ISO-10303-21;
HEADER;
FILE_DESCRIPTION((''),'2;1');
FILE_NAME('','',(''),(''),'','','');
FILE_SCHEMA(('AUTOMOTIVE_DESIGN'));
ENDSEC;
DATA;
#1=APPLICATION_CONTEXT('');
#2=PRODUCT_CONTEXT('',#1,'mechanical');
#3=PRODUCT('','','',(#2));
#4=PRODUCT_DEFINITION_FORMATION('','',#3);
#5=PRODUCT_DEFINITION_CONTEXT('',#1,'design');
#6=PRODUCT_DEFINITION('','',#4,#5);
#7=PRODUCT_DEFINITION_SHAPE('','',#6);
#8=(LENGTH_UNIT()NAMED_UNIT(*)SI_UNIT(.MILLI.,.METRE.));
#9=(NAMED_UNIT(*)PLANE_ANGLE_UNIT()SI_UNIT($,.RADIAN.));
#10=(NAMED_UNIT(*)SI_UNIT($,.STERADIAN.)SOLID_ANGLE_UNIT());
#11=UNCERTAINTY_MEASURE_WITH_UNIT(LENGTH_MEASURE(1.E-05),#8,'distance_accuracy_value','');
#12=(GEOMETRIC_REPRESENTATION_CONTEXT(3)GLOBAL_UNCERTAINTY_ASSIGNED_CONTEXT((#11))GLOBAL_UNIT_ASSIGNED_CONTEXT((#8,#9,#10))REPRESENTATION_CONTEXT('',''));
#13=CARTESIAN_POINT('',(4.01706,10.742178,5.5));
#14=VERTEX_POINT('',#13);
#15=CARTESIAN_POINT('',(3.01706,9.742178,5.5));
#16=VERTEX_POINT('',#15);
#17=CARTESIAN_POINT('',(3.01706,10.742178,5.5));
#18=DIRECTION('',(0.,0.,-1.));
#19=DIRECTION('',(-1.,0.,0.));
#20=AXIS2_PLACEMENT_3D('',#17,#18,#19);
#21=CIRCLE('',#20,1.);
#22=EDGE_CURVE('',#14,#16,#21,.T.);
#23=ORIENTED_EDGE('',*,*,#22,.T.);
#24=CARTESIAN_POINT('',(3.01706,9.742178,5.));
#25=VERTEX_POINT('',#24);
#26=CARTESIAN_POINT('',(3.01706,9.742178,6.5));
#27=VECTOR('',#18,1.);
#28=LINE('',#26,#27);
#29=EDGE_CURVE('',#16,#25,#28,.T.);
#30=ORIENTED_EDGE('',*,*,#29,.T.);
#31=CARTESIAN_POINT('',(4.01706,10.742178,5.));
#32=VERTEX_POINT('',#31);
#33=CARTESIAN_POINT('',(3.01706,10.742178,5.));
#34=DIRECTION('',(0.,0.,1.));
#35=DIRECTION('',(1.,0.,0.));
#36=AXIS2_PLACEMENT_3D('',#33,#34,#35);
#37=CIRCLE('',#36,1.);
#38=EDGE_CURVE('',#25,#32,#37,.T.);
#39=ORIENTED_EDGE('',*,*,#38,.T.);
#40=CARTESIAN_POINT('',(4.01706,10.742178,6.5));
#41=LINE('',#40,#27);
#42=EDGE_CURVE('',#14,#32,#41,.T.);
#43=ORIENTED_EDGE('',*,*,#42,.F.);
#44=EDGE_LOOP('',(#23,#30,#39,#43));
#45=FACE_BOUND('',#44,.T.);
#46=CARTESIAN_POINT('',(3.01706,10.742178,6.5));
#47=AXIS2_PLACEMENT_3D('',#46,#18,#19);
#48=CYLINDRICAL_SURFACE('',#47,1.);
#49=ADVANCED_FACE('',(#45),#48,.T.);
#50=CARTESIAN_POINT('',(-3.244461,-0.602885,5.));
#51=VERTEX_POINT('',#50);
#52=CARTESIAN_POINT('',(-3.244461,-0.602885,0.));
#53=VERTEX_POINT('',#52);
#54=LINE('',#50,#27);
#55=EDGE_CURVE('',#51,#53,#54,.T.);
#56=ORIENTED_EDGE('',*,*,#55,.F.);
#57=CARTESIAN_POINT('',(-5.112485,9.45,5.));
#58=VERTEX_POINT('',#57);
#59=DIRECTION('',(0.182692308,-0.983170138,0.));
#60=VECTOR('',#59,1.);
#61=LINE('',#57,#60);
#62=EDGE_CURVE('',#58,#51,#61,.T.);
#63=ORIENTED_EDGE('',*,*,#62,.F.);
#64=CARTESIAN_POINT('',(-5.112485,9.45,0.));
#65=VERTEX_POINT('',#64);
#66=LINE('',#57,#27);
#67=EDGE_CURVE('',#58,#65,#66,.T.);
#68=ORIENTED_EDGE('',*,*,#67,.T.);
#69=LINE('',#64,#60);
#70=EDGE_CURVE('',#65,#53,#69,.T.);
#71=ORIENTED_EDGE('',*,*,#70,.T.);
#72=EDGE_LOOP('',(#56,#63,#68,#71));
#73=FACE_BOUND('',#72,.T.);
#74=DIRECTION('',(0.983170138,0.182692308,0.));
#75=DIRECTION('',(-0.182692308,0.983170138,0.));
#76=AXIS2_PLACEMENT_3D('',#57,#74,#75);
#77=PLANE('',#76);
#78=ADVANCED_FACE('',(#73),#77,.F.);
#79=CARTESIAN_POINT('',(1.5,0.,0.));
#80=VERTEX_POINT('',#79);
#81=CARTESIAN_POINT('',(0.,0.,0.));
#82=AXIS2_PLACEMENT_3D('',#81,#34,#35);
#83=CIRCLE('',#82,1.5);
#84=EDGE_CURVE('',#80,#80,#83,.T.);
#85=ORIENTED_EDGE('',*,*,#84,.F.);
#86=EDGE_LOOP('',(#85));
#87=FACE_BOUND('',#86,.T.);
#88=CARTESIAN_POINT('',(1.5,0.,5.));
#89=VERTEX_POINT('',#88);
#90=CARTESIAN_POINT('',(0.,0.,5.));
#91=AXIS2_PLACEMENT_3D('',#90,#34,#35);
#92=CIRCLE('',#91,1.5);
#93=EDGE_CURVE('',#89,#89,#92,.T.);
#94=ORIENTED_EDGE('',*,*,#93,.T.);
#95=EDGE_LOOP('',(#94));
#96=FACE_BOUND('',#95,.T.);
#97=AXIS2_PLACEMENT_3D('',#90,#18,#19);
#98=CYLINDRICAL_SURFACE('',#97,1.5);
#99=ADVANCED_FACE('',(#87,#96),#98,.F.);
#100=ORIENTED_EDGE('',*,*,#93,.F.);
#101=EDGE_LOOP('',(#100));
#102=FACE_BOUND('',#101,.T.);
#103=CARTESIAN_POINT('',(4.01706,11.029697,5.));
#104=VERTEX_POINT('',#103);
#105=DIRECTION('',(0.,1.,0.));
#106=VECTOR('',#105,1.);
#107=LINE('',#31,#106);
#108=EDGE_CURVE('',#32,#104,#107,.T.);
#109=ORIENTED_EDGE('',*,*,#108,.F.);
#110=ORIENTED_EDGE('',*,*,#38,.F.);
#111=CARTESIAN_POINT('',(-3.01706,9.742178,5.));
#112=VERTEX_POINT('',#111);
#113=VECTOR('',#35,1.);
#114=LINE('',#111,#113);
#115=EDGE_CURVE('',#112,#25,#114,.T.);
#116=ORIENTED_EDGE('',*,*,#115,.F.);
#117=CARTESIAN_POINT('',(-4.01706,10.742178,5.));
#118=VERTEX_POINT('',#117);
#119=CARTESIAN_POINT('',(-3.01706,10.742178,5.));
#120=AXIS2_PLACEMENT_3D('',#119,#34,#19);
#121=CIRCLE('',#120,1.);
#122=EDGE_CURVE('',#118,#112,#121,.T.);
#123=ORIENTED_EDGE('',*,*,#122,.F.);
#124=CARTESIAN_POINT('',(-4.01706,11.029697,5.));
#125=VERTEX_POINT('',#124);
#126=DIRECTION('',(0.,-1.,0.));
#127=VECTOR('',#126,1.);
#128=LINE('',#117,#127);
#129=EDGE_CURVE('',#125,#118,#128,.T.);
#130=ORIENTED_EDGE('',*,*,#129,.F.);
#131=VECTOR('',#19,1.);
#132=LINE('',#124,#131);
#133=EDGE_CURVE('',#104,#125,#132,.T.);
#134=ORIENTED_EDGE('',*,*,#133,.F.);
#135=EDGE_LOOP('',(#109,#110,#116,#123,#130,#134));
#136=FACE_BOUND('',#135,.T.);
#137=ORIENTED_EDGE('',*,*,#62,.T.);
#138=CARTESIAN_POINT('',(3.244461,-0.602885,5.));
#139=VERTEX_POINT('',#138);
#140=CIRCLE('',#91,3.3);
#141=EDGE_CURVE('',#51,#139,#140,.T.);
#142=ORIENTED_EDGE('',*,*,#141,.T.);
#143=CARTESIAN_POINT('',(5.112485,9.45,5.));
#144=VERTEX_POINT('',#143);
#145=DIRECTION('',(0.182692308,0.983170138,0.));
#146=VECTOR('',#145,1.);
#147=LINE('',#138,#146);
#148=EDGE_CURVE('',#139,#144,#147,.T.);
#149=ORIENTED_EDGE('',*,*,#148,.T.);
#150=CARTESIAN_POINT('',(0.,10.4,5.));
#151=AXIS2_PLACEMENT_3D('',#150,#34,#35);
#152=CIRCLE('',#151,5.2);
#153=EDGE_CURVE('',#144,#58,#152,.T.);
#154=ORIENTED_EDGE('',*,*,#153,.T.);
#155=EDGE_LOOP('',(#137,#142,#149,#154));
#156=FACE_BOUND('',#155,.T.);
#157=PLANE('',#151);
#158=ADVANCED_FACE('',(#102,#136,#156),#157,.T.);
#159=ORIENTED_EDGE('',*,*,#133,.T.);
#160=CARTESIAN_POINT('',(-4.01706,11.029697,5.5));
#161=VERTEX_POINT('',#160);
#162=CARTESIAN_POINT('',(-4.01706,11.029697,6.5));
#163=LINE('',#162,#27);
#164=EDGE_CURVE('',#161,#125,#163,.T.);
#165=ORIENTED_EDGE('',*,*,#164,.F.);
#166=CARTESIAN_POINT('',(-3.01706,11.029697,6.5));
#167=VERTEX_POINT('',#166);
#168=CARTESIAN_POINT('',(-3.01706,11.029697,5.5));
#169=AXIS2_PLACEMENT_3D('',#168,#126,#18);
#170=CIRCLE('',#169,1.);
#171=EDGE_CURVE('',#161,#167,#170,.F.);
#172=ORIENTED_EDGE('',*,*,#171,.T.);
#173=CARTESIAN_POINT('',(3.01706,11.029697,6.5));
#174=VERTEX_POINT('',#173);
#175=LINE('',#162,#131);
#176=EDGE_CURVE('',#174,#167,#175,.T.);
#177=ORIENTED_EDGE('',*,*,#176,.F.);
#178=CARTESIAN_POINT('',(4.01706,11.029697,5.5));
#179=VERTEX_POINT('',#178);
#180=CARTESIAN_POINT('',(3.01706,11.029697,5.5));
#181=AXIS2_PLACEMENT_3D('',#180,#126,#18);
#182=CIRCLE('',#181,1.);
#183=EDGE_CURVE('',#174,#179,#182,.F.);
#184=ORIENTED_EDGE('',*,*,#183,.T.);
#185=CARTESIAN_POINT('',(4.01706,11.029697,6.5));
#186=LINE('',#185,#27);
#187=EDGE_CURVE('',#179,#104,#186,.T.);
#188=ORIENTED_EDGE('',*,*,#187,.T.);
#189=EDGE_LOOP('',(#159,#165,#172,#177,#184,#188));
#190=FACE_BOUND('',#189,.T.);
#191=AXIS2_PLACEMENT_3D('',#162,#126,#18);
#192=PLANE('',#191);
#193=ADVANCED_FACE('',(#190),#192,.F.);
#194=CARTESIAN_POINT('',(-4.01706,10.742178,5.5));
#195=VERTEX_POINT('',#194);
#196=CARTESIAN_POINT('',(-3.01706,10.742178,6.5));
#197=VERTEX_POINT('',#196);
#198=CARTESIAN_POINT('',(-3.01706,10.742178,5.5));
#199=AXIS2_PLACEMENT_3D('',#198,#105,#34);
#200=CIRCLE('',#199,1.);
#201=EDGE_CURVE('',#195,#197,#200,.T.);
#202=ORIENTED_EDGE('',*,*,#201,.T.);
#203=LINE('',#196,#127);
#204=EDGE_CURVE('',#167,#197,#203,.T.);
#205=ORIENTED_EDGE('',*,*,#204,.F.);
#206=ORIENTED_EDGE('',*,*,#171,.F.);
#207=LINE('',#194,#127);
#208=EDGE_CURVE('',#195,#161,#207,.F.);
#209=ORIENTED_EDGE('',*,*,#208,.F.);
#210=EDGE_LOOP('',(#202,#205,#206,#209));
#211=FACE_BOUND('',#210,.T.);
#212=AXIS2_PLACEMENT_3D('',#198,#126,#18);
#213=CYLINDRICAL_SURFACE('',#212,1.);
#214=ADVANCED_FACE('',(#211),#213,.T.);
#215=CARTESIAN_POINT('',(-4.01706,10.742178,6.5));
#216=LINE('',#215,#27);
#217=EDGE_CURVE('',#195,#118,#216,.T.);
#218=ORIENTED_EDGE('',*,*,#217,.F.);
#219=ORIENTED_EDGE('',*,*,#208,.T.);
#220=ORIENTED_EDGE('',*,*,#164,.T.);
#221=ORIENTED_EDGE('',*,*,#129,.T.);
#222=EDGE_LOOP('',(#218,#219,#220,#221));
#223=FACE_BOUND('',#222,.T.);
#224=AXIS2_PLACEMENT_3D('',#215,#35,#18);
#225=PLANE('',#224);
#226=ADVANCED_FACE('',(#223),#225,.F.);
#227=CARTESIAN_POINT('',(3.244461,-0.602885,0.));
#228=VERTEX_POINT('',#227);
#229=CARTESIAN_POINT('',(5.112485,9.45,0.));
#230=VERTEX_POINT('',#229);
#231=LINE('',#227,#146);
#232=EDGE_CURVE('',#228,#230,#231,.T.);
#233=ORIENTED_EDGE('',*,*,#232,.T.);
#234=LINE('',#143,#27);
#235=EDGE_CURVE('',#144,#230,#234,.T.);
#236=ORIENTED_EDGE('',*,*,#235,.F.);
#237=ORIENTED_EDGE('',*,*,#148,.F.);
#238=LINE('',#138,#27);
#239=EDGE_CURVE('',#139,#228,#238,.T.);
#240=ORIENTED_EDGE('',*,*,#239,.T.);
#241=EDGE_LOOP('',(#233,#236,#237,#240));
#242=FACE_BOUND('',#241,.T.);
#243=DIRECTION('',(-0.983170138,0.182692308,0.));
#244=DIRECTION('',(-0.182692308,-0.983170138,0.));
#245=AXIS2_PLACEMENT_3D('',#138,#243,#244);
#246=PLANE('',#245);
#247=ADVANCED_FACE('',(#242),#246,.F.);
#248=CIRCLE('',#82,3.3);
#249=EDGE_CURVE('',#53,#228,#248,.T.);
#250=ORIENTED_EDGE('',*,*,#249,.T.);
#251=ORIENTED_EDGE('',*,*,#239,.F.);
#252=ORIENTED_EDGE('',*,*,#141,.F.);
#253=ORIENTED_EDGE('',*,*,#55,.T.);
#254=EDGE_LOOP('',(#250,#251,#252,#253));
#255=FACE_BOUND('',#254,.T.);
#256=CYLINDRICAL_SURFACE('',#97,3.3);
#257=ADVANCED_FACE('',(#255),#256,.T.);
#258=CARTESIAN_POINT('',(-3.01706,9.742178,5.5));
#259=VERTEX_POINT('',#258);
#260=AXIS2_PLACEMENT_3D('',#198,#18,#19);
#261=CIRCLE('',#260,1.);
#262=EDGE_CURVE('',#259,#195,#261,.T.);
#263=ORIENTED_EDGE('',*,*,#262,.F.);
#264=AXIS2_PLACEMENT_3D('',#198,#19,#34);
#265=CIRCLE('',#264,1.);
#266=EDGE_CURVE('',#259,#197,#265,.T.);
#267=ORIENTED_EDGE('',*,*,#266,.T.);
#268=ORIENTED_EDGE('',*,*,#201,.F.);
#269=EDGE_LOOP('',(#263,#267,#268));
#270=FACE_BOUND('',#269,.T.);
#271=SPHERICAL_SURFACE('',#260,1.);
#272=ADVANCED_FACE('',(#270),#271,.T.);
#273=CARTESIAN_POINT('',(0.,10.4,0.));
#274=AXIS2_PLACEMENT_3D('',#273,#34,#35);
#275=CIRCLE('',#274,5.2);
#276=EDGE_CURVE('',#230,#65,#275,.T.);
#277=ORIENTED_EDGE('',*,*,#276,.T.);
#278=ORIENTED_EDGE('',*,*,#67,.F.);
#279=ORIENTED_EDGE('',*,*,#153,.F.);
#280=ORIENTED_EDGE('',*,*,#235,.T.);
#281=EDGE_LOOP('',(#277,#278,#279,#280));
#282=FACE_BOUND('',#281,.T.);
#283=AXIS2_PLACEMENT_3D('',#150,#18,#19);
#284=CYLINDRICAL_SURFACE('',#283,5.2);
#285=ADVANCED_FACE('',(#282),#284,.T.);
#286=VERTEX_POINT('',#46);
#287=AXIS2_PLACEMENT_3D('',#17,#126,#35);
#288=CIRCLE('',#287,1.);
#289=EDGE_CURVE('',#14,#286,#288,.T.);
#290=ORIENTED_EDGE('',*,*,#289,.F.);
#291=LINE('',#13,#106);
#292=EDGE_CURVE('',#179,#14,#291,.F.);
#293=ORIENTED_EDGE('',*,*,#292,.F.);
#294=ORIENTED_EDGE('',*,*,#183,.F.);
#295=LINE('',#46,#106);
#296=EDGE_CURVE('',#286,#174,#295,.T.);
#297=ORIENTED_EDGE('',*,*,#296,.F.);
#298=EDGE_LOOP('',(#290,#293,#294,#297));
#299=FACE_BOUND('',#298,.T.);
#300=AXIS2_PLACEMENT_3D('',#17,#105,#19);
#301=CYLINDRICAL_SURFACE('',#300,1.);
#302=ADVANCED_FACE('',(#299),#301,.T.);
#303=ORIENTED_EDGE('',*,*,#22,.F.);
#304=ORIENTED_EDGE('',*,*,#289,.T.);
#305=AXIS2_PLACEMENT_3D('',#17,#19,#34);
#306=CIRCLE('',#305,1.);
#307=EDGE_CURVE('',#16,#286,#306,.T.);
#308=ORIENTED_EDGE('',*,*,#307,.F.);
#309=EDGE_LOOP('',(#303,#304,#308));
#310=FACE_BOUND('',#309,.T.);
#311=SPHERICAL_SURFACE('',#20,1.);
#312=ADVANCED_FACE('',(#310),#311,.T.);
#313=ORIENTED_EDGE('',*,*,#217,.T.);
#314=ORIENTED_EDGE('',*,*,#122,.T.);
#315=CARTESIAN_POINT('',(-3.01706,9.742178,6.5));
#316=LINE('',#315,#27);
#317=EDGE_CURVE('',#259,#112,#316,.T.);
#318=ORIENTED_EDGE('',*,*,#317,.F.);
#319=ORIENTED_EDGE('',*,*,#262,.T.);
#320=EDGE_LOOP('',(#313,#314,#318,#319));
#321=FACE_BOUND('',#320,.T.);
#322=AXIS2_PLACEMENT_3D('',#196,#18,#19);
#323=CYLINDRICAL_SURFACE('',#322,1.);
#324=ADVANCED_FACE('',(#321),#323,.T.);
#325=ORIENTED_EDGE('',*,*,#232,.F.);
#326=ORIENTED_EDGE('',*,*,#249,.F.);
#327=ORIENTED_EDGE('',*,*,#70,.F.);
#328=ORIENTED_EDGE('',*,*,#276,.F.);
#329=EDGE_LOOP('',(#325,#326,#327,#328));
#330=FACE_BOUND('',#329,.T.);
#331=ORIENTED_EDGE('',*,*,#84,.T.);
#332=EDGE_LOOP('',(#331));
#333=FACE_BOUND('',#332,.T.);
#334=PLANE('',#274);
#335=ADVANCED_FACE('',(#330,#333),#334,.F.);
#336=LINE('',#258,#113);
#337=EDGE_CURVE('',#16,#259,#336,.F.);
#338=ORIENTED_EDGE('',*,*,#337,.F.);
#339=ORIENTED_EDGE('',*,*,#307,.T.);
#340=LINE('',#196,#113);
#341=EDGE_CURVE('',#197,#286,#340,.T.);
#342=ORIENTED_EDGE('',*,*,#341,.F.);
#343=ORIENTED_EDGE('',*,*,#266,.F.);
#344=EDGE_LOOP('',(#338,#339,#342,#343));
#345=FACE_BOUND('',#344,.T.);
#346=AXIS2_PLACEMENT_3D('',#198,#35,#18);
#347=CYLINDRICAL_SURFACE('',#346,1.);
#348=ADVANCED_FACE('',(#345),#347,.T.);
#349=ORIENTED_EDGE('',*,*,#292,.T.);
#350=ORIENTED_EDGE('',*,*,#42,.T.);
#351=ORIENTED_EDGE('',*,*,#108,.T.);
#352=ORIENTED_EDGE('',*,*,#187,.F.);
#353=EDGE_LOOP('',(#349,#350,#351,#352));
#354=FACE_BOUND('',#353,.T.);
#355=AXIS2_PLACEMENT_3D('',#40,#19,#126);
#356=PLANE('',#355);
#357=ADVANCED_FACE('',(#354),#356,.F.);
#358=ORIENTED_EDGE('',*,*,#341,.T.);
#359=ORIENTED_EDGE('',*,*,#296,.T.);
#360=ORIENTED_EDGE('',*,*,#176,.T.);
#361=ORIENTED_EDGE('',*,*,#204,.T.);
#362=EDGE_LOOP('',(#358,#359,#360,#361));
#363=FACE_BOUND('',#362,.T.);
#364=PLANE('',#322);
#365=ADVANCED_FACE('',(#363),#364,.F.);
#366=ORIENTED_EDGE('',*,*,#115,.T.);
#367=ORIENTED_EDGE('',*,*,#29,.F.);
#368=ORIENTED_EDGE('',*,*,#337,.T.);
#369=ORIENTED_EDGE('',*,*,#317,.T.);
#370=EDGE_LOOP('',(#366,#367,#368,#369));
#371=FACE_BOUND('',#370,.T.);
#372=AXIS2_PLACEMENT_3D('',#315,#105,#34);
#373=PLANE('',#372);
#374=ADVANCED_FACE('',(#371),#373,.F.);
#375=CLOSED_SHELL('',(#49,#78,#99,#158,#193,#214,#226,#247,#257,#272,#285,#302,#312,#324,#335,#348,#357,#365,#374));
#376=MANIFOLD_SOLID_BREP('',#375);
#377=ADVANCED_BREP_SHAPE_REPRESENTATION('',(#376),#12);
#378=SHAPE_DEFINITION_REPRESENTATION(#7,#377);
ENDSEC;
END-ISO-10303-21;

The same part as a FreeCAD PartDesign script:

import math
import FreeCAD as App
import Part
import Sketcher
from FreeCAD import Vector
Q = App.Units.Quantity


def edges_at(feature, points):
    """Names of the edges that pass closest to the given points."""
    edges = feature.Shape.Edges
    near = lambda p: min(range(len(edges)), key=lambda i: edges[i].distToShape(Part.Vertex(*p))[0])
    return sorted({f"Edge{near(p) + 1}" for p in points})

doc = App.newDocument("Part")
body = doc.addObject("PartDesign::Body", "Body")

sketch1 = doc.addObject("Sketcher::SketchObject", "Sketch")
body.addObject(sketch1)
sketch1.AttachmentSupport = (doc.XY_Plane, [""])
sketch1.MapMode = "FlatFace"
sketch1.addGeometry([
    Part.LineSegment(Vector(-5.1, 9.4, 0), Vector(-3.2, -0.6, 0)),
    Part.ArcOfCircle(Part.Circle(Vector(0, 0, 0), Vector(0, 0, 1), 3.3), math.radians(-169), math.radians(-11)),
    Part.LineSegment(Vector(3.2, -0.6, 0), Vector(5.1, 9.4, 0)),
    Part.ArcOfCircle(Part.Circle(Vector(0, 10.4, 0), Vector(0, 0, 1), 5.2), math.radians(-11), math.radians(191)),
    Part.Circle(Vector(0, 0, 0), Vector(0, 0, 1), 1.5),
], False)
sketch1.addConstraint([
    Sketcher.Constraint("Tangent", 0, 2, 1, 1),
    Sketcher.Constraint("Tangent", 1, 2, 2, 1),
    Sketcher.Constraint("Tangent", 2, 2, 3, 1),
    Sketcher.Constraint("Tangent", 3, 2, 0, 1),
    Sketcher.Constraint("Coincident", 1, 3, -1, 1),
    Sketcher.Constraint("Coincident", 4, 3, -1, 1),
    Sketcher.Constraint("PointOnObject", 3, 3, -2),
    Sketcher.Constraint("Diameter", 4, Q("3 mm")),
    Sketcher.Constraint("Radius", 1, Q("3.3 mm")),
    Sketcher.Constraint("Radius", 3, Q("5.2 mm")),
    Sketcher.Constraint("DistanceY", -1, 1, 3, 3, Q("10.4 mm")),
])
pad1 = doc.addObject("PartDesign::Pad", "Pad")
body.addObject(pad1)
pad1.Profile = sketch1
pad1.Length = 5

sketch2 = doc.addObject("Sketcher::SketchObject", "Sketch001")
body.addObject(sketch2)
sketch2.AttachmentSupport = (doc.XY_Plane, [""])
sketch2.MapMode = "FlatFace"
sketch2.AttachmentOffset = App.Placement(Vector(0, 0, 5), App.Rotation())
sketch2.addGeometry([
    Part.LineSegment(Vector(-3.02, 9.74, 0), Vector(3.02, 9.74, 0)),
    Part.ArcOfCircle(Part.Circle(Vector(3.02, 10.74, 0), Vector(0, 0, 1), 1), math.radians(-90), math.radians(0)),
    Part.LineSegment(Vector(4.02, 10.74, 0), Vector(4.02, 11.03, 0)),
    Part.LineSegment(Vector(4.02, 11.03, 0), Vector(-4.02, 11.03, 0)),
    Part.LineSegment(Vector(-4.02, 11.03, 0), Vector(-4.02, 10.74, 0)),
    Part.ArcOfCircle(Part.Circle(Vector(-3.02, 10.74, 0), Vector(0, 0, 1), 1), math.radians(-180), math.radians(-90)),
], False)
sketch2.addConstraint([
    Sketcher.Constraint("Tangent", 0, 2, 1, 1),
    Sketcher.Constraint("Tangent", 1, 2, 2, 1),
    Sketcher.Constraint("Coincident", 2, 2, 3, 1),
    Sketcher.Constraint("Coincident", 3, 2, 4, 1),
    Sketcher.Constraint("Tangent", 4, 2, 5, 1),
    Sketcher.Constraint("Tangent", 5, 2, 0, 1),
    Sketcher.Constraint("Horizontal", 0),
    Sketcher.Constraint("Vertical", 2),
    Sketcher.Constraint("Horizontal", 3),
    Sketcher.Constraint("Vertical", 4),
    Sketcher.Constraint("Equal", 1, 5),
    Sketcher.Constraint("Radius", 1, Q("1 mm")),
    Sketcher.Constraint("DistanceX", 0, 1, 0, 2, Q("6.034119 mm")),
    Sketcher.Constraint("DistanceY", 2, 1, 2, 2, Q("0.287519 mm")),
    Sketcher.Constraint("DistanceX", -1, 1, 1, 3, Q("3.01706 mm")),
    Sketcher.Constraint("DistanceY", -1, 1, 1, 3, Q("10.742178 mm")),
])
pad2 = doc.addObject("PartDesign::Pad", "Pad001")
body.addObject(pad2)
pad2.Profile = sketch2
pad2.Length = 1.5
doc.recompute()

fillet = doc.addObject("PartDesign::Fillet", "Fillet")
body.addObject(fillet)
fillet.Base = (pad2, edges_at(pad2, [
    (4.017, 10.886, 6.5),
    (-4.017, 10.886, 6.5),
    (-3.724, 10.035, 6.5),
    (0, 9.742, 6.5),
    (3.724, 10.035, 6.5),
]))
fillet.Radius = 1

doc.recompute()
